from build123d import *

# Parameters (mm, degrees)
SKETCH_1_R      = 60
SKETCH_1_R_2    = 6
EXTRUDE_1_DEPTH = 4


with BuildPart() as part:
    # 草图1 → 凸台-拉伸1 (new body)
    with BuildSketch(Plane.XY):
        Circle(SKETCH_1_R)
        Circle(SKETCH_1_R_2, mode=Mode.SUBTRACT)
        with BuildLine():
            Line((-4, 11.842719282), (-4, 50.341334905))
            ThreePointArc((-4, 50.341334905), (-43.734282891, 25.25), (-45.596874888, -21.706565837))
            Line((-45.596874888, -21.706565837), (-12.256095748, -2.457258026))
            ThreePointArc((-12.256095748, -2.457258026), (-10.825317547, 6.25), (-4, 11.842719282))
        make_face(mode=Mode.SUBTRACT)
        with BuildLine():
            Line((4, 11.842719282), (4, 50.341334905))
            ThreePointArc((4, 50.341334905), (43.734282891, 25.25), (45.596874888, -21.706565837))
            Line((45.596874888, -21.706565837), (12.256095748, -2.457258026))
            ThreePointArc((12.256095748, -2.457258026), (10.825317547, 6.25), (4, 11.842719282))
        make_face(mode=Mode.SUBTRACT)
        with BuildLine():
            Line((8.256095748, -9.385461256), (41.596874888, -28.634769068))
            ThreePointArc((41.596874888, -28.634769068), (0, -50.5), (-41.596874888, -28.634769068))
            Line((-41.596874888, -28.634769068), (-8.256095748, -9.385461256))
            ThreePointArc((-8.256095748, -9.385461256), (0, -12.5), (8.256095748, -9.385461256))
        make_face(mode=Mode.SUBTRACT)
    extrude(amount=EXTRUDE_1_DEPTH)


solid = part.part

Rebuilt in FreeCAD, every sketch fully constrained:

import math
import FreeCAD as App
import Part
import Sketcher
Q = App.Units.Quantity

doc = App.newDocument("Part")
params = doc.addObject("Spreadsheet::Sheet", "Params")
for row, (alias, value) in enumerate([
    ("sketch1_diameter", "120 mm"),
    ("sketch1_diameter2", "12 mm"),
    ("sketch1_radius", "12.5 mm"),
    ("sketch1_radius2", "50.5 mm"),
    ("pad1_length", "4 mm"),
], start=1):
    params.set(f"A{row}", alias)
    params.set(f"B{row}", "=" + value)
    params.setAlias(f"B{row}", alias)

body = doc.addObject("PartDesign::Body", "Body")

sketch1 = body.newObject("Sketcher::SketchObject", "Sketch")
sketch1.AttachmentSupport = (doc.getObject("XY_Plane"), [""])
sketch1.MapMode = "FlatFace"
sketch1.addGeometry([
    Part.Circle(App.Vector(0, 0, 0), App.Vector(0, 0, 1), 60),
    Part.ArcOfCircle(Part.Circle(App.Vector(0, 0, 0), App.Vector(0, 0, 1), 12), math.radians(-131), math.radians(-49)),
    Part.LineSegment(App.Vector(8, -9, 0), App.Vector(42, -29, 0)),
    Part.ArcOfCircle(Part.Circle(App.Vector(0, 0, 0), App.Vector(0, 0, 1), 51), math.radians(-145), math.radians(-35)),
    Part.LineSegment(App.Vector(-42, -29, 0), App.Vector(-8, -9, 0)),
    Part.LineSegment(App.Vector(-4, 50, 0), App.Vector(-4, 12, 0)),
    Part.ArcOfCircle(Part.Circle(App.Vector(0, 0, 0), App.Vector(0, 0, 1), 12), math.radians(109), math.radians(191)),
    Part.LineSegment(App.Vector(-12, -2, 0), App.Vector(-46, -22, 0)),
    Part.ArcOfCircle(Part.Circle(App.Vector(0, 0, 0), App.Vector(0, 0, 1), 50), math.radians(95), math.radians(205)),
    Part.Circle(App.Vector(0, 0, 0), App.Vector(0, 0, 1), 6),
    Part.ArcOfCircle(Part.Circle(App.Vector(0, 0, 0), App.Vector(0, 0, 1), 12), math.radians(-11), math.radians(71)),
    Part.LineSegment(App.Vector(4, 12, 0), App.Vector(4, 50, 0)),
    Part.ArcOfCircle(Part.Circle(App.Vector(0, 0, 0), App.Vector(0, 0, 1), 50), math.radians(-25), math.radians(85)),
    Part.LineSegment(App.Vector(46, -22, 0), App.Vector(12, -2, 0)),
], False)
sketch1.addConstraint([
    Sketcher.Constraint("Coincident", 1, 2, 2, 1),
    Sketcher.Constraint("Coincident", 2, 2, 3, 2),
    Sketcher.Constraint("Coincident", 3, 1, 4, 1),
    Sketcher.Constraint("Coincident", 4, 2, 1, 1),
    Sketcher.Constraint("Coincident", 5, 2, 6, 1),
    Sketcher.Constraint("Coincident", 6, 2, 7, 1),
    Sketcher.Constraint("Coincident", 7, 2, 8, 2),
    Sketcher.Constraint("Coincident", 8, 1, 5, 1),
    Sketcher.Constraint("Coincident", 10, 2, 11, 1),
    Sketcher.Constraint("Coincident", 11, 2, 12, 2),
    Sketcher.Constraint("Coincident", 12, 1, 13, 1),
    Sketcher.Constraint("Coincident", 13, 2, 10, 1),
    Sketcher.Constraint("Vertical", 5),
    Sketcher.Constraint("Vertical", 11),
    Sketcher.Constraint("Coincident", 0, 3, -1, 1),
    Sketcher.Constraint("Coincident", 1, 3, -1, 1),
    Sketcher.Constraint("Coincident", 3, 3, -1, 1),
    Sketcher.Constraint("Coincident", 6, 3, -1, 1),
    Sketcher.Constraint("Coincident", 8, 3, -1, 1),
    Sketcher.Constraint("Coincident", 9, 3, -1, 1),
    Sketcher.Constraint("Coincident", 10, 3, -1, 1),
    Sketcher.Constraint("Coincident", 12, 3, -1, 1),
    Sketcher.Constraint("Equal", 1, 6),
    Sketcher.Constraint("Equal", 3, 8),
    Sketcher.Constraint("Equal", 6, 10),
    Sketcher.Constraint("Equal", 8, 12),
    Sketcher.Constraint("Parallel", 4, 7),
    Sketcher.Constraint("Parallel", 2, 13),
    Sketcher.Constraint("Horizontal", 2, 2, 3, 1),
    Sketcher.Constraint("Horizontal", 1, 2, 4, 2),
    Sketcher.Constraint("Horizontal", 5, 2, 10, 2),
    Sketcher.Constraint("Horizontal", 7, 2, 12, 1),
    Sketcher.Constraint("Equal", 4, 7),
    Sketcher.Constraint("Diameter", 0, 120.0),
    Sketcher.Constraint("Diameter", 9, 12.0),
    Sketcher.Constraint("Radius", 1, 12.5),
    Sketcher.Constraint("Radius", 3, 50.5),
    Sketcher.Constraint("Angle", 2, Q("-30 deg")),
    Sketcher.Constraint("DistanceX", 5, 2, -1, 1, 4.0),
    Sketcher.Constraint("DistanceX", 6, 2, 4, 2, 4.0),
])
sketch1.setExpression("Constraints[33]", "Params.sketch1_diameter")
sketch1.setExpression("Constraints[34]", "Params.sketch1_diameter2")
sketch1.setExpression("Constraints[35]", "Params.sketch1_radius")
sketch1.setExpression("Constraints[36]", "Params.sketch1_radius2")
pad1 = body.newObject("PartDesign::Pad", "Pad")
pad1.Profile = sketch1
pad1.setExpression("Length", "Params.pad1_length")

doc.recompute()
